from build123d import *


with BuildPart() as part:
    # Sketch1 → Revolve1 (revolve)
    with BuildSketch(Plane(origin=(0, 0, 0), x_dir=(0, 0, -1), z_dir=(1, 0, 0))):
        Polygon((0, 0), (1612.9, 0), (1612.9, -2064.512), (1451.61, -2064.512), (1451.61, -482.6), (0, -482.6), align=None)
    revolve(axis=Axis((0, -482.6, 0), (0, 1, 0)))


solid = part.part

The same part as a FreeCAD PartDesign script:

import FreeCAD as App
import Part
import Sketcher
Q = App.Units.Quantity


def add_polygon(sketch, points):
    """Adds a closed chain of lines whose ends are joined by coincident constraints."""
    first, n = sketch.GeometryCount, len(points)
    for a, b in zip(points, points[1:] + points[:1]):
        sketch.addGeometry(Part.LineSegment(App.Vector(*a, 0), App.Vector(*b, 0)), False)
    for i in range(n):
        sketch.addConstraint(Sketcher.Constraint("Coincident", first + i, 2, first + (i + 1) % n, 1))

doc = App.newDocument("Part")
body = doc.addObject("PartDesign::Body", "Body")

sketch1 = body.newObject("Sketcher::SketchObject", "Sketch")
sketch1.AttachmentSupport = (doc.getObject("YZ_Plane"), [""])
sketch1.MapMode = "FlatFace"
add_polygon(sketch1, [(0, -1613), (0, 0), (-483, 0), (-483, -1452), (-2065, -1452), (-2065, -1613)])
sketch1.addConstraint(Sketcher.Constraint("Vertical", 0))
sketch1.addConstraint(Sketcher.Constraint("Horizontal", 1))
sketch1.addConstraint(Sketcher.Constraint("Vertical", 2))
sketch1.addConstraint(Sketcher.Constraint("Horizontal", 3))
sketch1.addConstraint(Sketcher.Constraint("Vertical", 4))
sketch1.addConstraint(Sketcher.Constraint("Horizontal", 5))
sketch1.addConstraint(Sketcher.Constraint("Coincident", 0, 2, -1, 1))
sketch1.addConstraint(Sketcher.Constraint("DistanceX", 1, 2, 1, 1, Q("19 in")))
sketch1.addConstraint(Sketcher.Constraint("DistanceY", 0, 1, 0, 2, Q("63.5 in")))
sketch1.addConstraint(Sketcher.Constraint("DistanceX", 3, 2, 3, 1, Q("62.28 in")))
sketch1.addConstraint(Sketcher.Constraint("DistanceY", 2, 2, 2, 1, Q("57.15 in")))
revolution = body.newObject("PartDesign::Revolution", "Revolution")
revolution.Profile = sketch1
revolution.ReferenceAxis = (sketch1, ["H_Axis"])
revolution.Angle = 360

doc.recompute()
